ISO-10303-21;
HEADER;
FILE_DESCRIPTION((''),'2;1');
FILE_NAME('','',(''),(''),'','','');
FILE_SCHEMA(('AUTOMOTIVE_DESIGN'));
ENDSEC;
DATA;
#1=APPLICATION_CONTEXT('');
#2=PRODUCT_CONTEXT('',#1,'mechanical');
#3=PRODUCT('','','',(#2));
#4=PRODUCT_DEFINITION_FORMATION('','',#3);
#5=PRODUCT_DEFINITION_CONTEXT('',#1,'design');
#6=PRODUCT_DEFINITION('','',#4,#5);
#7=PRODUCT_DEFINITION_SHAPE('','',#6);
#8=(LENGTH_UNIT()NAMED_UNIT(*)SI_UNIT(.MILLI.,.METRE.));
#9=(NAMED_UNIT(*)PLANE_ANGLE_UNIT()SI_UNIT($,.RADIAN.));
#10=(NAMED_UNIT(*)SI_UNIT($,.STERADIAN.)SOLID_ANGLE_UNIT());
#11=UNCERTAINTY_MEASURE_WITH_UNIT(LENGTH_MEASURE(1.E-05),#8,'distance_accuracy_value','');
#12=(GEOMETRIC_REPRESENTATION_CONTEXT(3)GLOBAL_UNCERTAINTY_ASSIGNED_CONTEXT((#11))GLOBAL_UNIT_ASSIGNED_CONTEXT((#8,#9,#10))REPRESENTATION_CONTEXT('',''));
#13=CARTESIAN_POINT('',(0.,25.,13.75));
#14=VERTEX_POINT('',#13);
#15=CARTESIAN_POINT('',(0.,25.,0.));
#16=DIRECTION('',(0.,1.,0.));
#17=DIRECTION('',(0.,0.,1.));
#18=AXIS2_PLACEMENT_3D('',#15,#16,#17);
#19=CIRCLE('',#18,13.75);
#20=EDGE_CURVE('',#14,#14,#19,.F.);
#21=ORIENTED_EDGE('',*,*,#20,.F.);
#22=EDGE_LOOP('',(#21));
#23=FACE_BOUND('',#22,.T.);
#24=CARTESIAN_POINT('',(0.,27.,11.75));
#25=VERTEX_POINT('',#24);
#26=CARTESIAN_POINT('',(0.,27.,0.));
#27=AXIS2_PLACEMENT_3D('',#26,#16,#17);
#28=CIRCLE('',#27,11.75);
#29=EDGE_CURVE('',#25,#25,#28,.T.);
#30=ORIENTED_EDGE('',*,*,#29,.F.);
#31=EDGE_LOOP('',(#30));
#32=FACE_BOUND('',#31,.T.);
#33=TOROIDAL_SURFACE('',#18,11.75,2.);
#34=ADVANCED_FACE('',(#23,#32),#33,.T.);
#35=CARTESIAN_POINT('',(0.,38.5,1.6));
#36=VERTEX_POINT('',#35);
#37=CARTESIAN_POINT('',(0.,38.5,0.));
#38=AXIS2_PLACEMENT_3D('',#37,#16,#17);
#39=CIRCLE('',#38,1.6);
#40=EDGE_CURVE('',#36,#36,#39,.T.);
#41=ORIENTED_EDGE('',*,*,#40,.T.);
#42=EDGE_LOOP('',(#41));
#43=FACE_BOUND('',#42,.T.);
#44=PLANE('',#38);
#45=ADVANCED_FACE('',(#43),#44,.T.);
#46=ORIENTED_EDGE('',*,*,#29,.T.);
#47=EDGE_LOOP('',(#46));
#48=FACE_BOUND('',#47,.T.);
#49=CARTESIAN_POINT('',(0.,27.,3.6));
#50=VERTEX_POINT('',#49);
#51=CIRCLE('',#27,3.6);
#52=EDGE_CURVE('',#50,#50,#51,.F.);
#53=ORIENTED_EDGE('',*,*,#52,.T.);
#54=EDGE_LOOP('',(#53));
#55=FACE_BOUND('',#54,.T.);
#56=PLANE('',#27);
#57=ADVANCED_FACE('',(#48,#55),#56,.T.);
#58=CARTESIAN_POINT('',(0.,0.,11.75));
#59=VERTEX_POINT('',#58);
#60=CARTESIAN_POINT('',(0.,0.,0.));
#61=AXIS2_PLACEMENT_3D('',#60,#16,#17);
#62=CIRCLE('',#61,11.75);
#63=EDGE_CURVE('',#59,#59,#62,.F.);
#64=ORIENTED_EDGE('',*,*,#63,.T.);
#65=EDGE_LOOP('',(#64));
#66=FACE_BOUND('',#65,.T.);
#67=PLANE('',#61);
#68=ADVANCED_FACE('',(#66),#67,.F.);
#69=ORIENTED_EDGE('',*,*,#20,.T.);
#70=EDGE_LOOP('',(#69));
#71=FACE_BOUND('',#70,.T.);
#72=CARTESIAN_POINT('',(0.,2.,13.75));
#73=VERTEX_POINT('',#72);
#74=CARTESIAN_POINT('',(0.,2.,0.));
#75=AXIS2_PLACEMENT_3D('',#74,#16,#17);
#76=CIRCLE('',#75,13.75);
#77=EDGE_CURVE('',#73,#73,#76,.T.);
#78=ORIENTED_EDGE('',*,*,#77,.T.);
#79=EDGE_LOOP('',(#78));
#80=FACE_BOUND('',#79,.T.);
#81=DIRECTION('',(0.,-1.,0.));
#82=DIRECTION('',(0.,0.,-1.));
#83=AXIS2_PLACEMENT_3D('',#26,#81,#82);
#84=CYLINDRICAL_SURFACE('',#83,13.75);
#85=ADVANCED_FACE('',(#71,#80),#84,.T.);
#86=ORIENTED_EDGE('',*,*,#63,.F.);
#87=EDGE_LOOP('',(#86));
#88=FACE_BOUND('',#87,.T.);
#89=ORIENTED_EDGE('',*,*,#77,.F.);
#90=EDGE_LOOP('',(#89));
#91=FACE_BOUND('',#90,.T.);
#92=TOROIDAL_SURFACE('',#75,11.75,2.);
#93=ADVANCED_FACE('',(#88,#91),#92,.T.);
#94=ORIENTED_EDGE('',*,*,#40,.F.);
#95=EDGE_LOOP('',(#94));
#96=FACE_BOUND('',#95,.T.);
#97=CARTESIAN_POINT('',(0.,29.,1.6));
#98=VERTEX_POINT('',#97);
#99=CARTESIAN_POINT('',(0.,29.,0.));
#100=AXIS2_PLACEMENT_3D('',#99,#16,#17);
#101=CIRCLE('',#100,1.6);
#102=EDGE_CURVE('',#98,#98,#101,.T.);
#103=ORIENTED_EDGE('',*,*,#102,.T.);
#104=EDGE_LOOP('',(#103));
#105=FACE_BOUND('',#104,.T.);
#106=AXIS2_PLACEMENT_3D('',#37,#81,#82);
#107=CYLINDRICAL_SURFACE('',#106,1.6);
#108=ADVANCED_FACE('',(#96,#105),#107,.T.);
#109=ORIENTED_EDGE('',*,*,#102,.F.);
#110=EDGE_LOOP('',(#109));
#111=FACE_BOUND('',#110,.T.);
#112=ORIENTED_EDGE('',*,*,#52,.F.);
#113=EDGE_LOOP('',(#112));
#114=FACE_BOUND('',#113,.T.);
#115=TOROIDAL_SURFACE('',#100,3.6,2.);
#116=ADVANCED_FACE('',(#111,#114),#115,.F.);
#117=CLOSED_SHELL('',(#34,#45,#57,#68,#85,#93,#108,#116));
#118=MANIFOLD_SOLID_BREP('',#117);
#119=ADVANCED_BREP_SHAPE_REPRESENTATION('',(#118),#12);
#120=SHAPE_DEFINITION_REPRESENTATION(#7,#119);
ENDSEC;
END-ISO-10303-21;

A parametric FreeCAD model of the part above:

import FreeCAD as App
import Part
import Sketcher
from FreeCAD import Vector
Q = App.Units.Quantity


def edges_at(feature, points):
    """Names of the edges that pass closest to the given points."""
    edges = feature.Shape.Edges
    near = lambda p: min(range(len(edges)), key=lambda i: edges[i].distToShape(Part.Vertex(*p))[0])
    return sorted({f"Edge{near(p) + 1}" for p in points})

doc = App.newDocument("Part")
body = doc.addObject("PartDesign::Body", "Body")

sketch1 = body.newObject("Sketcher::SketchObject", "Sketch")
sketch1.AttachmentSupport = (doc.getObject("XZ_Plane"), [""])
sketch1.MapMode = "FlatFace"
sketch1.addGeometry(Part.Circle(Vector(0, 0, 0), Vector(0, 0, 1), 14), False)
sketch1.addConstraint([
    Sketcher.Constraint("Coincident", 0, 3, -1, 1),
    Sketcher.Constraint("Diameter", 0, Q("27.5 mm")),
])
pad1 = body.newObject("PartDesign::Pad", "Pad")
pad1.Profile = sketch1
pad1.Length = 27
pad1.Reversed = True

sketch2 = body.newObject("Sketcher::SketchObject", "Sketch001")
sketch2.AttachmentSupport = (doc.getObject("XZ_Plane"), [""])
sketch2.MapMode = "FlatFace"
sketch2.AttachmentOffset = App.Placement(Vector(0, 0, -27), App.Rotation())
sketch2.addGeometry(Part.Circle(Vector(0, 0, 0), Vector(0, 0, 1), 1.6), False)
sketch2.addConstraint([
    Sketcher.Constraint("Coincident", 0, 3, -1, 1),
    Sketcher.Constraint("Diameter", 0, Q("3.2 mm")),
])
pad2 = body.newObject("PartDesign::Pad", "Pad001")
pad2.Profile = sketch2
pad2.Length = 11.5
pad2.Reversed = True
doc.recompute()

fillet = body.newObject("PartDesign::Fillet", "Fillet")
fillet.Base = (pad2, edges_at(pad2, [(0, 0, -13.75), (0, 27, -13.75), (0, 27, -1.6)]))
fillet.Radius = 2

doc.recompute()
